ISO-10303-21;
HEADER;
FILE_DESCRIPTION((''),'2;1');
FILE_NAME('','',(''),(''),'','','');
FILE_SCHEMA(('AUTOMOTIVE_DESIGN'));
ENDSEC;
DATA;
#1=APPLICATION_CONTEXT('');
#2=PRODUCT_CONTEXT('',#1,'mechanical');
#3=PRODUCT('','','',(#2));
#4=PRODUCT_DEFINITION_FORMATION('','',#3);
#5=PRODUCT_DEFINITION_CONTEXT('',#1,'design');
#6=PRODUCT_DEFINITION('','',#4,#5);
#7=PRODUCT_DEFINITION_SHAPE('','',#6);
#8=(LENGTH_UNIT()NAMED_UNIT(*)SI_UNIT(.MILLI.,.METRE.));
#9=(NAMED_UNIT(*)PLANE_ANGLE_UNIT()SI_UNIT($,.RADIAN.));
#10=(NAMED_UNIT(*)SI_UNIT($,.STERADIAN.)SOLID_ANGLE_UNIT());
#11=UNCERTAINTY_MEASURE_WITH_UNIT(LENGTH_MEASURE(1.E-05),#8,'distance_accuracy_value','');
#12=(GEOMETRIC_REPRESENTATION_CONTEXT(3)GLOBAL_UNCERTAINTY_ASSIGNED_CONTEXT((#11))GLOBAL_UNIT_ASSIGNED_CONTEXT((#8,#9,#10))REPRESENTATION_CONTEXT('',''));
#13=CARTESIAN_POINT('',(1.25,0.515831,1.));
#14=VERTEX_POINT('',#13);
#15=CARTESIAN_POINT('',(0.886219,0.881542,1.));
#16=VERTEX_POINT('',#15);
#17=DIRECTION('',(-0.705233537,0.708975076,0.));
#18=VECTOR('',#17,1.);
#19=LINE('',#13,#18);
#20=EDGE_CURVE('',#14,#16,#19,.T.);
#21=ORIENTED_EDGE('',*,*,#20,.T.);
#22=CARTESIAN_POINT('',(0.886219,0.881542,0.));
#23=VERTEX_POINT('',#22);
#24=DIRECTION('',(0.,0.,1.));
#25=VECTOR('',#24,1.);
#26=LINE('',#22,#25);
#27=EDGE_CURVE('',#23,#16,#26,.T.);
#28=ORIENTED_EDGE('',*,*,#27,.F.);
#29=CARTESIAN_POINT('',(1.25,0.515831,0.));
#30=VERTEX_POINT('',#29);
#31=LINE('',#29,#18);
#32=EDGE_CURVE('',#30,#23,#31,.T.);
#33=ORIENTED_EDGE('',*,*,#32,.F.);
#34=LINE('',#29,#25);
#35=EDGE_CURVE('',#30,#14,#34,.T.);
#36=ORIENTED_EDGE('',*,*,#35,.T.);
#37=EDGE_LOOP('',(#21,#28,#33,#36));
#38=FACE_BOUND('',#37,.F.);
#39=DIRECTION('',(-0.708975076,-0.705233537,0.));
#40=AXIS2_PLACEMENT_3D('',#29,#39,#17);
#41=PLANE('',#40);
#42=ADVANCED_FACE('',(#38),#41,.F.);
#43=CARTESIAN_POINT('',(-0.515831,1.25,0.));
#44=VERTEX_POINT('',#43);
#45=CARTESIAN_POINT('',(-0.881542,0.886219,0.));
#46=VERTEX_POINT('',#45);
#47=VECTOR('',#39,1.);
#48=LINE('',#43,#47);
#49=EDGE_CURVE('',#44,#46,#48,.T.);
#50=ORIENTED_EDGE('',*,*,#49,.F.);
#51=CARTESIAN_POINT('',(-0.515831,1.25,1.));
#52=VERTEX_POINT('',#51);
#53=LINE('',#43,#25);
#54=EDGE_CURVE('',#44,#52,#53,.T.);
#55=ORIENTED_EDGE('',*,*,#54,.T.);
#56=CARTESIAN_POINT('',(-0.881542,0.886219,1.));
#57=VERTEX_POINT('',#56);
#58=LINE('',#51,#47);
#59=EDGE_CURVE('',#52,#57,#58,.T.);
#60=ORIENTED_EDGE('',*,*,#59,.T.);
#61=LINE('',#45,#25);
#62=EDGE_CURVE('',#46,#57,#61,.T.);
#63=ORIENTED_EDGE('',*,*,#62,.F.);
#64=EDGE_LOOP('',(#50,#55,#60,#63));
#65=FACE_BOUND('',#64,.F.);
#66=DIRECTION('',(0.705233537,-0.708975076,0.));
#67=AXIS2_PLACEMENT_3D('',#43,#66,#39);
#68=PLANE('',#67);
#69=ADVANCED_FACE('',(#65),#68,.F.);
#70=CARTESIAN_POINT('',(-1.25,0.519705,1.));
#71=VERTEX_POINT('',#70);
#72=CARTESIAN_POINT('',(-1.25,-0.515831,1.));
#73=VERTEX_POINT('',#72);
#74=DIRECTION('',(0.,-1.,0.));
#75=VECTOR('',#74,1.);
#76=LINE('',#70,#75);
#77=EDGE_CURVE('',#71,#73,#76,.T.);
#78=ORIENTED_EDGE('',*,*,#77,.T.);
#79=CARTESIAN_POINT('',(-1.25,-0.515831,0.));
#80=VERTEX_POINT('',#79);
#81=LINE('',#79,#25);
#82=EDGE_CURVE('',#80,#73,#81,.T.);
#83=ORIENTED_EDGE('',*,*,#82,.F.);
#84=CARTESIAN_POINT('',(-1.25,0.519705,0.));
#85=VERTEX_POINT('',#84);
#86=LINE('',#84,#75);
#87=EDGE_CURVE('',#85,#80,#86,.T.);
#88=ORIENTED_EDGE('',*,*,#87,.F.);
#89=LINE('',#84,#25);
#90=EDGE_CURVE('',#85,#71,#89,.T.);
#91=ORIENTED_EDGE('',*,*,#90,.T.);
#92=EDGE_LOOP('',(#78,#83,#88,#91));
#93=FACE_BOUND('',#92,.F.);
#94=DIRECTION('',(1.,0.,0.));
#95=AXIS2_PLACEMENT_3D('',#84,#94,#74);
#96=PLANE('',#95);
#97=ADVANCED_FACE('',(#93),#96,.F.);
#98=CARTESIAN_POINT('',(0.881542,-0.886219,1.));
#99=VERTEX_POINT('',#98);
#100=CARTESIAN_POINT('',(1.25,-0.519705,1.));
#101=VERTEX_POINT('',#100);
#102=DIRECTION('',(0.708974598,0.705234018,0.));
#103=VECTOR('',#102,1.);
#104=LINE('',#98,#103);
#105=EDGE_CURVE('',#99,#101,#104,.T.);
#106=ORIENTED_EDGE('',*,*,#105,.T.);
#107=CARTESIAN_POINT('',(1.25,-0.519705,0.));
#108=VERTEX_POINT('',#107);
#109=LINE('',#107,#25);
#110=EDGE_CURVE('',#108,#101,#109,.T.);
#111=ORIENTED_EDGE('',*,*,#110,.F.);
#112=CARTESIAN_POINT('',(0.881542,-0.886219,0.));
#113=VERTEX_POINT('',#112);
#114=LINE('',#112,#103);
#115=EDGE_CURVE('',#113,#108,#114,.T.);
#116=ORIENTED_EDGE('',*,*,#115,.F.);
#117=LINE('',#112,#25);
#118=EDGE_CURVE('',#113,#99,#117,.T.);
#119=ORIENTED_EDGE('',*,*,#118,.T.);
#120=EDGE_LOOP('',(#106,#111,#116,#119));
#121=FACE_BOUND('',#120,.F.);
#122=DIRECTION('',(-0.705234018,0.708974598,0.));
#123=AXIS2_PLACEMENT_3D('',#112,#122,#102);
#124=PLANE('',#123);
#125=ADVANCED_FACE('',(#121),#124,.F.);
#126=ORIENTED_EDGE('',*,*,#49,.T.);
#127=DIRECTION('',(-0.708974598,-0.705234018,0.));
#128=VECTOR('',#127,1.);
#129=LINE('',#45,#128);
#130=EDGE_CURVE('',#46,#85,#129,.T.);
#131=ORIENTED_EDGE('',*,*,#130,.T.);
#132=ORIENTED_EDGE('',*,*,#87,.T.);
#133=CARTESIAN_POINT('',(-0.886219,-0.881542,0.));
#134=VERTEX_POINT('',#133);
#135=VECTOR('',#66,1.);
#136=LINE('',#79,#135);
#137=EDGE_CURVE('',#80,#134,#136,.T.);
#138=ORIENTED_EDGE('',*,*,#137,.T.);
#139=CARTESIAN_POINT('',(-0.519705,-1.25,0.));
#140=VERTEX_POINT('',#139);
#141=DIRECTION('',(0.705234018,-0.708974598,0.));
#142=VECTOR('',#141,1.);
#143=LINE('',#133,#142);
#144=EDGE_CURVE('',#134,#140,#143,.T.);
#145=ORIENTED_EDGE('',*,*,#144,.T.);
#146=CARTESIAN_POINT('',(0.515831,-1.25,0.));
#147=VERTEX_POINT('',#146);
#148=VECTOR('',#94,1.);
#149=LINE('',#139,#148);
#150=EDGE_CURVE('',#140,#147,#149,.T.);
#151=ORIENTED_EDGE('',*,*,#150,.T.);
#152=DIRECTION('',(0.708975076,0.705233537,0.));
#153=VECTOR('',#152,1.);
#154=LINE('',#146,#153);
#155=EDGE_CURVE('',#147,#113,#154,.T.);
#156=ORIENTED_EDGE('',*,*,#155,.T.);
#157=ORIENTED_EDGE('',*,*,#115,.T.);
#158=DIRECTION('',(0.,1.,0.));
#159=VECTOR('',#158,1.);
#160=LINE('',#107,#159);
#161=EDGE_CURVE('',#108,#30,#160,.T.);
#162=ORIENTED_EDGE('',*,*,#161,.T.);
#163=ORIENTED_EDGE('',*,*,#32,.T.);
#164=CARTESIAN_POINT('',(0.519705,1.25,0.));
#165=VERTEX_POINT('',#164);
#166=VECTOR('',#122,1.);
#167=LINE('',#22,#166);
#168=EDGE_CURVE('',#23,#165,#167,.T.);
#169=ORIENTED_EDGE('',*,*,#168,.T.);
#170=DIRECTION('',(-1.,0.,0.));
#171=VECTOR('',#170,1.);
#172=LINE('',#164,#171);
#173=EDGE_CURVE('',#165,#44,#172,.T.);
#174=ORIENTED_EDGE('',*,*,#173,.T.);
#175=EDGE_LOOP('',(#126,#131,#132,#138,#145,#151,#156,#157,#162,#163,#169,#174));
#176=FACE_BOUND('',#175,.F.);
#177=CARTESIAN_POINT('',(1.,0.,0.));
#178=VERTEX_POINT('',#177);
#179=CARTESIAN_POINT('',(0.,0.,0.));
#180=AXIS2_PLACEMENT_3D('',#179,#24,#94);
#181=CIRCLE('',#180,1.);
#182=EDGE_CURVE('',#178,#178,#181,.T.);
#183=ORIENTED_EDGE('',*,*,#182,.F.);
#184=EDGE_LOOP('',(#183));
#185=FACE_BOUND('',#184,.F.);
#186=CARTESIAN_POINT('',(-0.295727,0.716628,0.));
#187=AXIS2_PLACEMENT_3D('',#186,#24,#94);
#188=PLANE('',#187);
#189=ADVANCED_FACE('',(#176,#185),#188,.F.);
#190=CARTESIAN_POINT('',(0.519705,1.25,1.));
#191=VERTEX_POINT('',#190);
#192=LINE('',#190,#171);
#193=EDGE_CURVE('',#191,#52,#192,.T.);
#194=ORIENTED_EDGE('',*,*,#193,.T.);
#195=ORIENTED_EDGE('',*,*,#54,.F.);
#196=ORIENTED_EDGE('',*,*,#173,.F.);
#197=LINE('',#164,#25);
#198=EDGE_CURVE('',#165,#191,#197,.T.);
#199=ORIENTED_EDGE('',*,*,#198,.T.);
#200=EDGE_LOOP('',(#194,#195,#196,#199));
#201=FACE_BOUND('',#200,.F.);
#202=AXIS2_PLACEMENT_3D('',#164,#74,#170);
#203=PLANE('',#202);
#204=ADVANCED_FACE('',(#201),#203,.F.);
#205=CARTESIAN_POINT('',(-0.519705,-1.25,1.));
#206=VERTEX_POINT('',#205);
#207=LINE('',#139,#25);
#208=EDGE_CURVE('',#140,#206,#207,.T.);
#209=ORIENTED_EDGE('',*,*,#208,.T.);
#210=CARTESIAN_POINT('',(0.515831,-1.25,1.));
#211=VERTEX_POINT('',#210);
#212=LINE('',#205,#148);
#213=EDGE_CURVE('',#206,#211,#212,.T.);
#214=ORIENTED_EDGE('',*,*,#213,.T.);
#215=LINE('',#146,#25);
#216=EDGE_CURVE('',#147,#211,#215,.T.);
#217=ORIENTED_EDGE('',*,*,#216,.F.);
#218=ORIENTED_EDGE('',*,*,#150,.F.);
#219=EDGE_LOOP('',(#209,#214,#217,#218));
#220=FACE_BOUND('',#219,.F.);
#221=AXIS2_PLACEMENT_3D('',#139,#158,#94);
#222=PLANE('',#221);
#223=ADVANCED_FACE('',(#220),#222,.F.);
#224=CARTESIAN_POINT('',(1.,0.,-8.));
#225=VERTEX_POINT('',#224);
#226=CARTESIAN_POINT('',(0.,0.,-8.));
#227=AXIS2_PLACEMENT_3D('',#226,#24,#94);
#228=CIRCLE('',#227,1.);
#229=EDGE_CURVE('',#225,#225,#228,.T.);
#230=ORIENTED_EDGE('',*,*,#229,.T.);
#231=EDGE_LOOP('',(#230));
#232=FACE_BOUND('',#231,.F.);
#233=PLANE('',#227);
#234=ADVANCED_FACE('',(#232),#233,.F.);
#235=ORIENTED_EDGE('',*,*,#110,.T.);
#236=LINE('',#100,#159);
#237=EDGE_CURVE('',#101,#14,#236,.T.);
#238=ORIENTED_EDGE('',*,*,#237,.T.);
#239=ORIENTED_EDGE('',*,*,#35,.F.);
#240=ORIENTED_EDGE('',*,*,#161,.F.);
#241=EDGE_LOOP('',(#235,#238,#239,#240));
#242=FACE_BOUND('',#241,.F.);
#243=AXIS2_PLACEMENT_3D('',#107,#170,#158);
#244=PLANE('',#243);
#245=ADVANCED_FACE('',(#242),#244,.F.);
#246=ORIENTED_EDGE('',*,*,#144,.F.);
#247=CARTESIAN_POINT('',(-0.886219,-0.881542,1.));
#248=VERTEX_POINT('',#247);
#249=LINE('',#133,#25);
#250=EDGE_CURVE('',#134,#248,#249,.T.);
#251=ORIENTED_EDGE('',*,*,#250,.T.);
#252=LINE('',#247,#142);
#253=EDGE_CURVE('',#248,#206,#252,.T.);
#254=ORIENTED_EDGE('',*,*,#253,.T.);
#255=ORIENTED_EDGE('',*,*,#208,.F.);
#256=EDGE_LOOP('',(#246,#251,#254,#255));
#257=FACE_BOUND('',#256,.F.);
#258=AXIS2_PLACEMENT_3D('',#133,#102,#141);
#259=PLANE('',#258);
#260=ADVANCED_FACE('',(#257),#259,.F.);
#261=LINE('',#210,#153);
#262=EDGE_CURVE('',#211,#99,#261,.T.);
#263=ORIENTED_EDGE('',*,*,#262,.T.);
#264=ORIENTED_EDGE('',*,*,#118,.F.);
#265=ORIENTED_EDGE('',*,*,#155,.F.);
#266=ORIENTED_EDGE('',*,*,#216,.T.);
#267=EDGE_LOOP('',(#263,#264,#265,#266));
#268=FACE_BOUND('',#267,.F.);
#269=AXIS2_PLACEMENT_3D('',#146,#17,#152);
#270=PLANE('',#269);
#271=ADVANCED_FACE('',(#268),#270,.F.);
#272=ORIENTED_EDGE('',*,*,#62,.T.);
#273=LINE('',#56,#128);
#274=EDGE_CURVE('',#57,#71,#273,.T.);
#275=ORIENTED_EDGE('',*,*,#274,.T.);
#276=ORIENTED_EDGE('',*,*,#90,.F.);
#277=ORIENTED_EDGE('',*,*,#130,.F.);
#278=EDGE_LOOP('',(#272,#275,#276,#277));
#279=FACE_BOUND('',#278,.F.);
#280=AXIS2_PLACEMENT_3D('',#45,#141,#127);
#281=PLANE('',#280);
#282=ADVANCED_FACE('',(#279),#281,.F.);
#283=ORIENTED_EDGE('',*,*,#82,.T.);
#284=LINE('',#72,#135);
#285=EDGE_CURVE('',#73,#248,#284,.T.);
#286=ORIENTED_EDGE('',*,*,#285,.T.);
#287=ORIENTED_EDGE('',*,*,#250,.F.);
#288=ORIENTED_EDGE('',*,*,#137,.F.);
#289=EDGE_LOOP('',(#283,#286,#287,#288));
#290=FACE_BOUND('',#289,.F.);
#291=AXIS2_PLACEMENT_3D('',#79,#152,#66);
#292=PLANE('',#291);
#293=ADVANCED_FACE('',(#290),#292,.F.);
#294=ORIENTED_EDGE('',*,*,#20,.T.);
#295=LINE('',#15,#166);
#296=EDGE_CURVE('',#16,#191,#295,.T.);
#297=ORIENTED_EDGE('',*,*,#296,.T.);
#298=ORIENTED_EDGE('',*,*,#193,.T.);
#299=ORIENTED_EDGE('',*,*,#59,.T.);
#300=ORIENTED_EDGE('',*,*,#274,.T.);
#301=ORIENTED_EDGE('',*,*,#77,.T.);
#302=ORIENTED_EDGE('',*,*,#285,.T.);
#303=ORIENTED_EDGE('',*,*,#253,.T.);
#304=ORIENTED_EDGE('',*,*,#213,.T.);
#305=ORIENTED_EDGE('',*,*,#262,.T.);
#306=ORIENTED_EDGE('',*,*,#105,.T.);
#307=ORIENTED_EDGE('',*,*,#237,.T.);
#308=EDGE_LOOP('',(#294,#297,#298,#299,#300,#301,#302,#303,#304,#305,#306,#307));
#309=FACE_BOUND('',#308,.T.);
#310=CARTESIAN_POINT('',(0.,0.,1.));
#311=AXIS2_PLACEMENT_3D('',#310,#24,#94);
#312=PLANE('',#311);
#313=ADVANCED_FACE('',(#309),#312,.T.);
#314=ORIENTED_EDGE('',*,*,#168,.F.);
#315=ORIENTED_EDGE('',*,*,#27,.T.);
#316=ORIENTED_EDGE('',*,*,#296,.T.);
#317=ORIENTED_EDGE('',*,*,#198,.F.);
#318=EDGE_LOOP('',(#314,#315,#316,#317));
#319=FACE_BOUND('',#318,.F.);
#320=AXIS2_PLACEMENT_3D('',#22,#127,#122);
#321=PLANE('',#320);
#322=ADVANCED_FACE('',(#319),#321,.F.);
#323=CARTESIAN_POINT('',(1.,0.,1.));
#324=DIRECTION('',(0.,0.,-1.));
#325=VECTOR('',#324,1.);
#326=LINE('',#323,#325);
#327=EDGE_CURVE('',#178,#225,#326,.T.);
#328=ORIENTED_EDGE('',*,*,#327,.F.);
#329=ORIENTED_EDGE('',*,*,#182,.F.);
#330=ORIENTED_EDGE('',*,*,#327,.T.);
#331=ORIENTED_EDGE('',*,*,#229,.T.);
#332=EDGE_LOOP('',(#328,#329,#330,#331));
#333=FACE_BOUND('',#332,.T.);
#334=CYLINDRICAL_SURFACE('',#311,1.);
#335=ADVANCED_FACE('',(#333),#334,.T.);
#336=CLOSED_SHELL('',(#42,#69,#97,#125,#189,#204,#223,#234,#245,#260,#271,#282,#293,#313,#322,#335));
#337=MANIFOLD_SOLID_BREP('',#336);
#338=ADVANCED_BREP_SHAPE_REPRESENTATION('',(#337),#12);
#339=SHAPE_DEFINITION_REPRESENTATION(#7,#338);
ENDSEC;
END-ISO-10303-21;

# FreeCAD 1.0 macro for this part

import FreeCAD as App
import Part
import Sketcher

doc = App.newDocument("Part")
body = doc.addObject("PartDesign::Body", "Body")

sketch1 = body.newObject("Sketcher::SketchObject", "Sketch")
sketch1.AttachmentSupport = (doc.getObject("XY_Plane"), [""])
sketch1.MapMode = "FlatFace"
sketch1.addGeometry([
    Part.LineSegment(App.Vector(-1.2, -0.5, 0), App.Vector(-0.9, -0.9, 0)),
    Part.LineSegment(App.Vector(-0.9, -0.9, 0), App.Vector(-0.5, -1.2, 0)),
    Part.LineSegment(App.Vector(-0.5, -1.2, 0), App.Vector(0.5, -1.2, 0)),
    Part.LineSegment(App.Vector(0.5, -1.2, 0), App.Vector(0.9, -0.9, 0)),
    Part.LineSegment(App.Vector(0.9, -0.9, 0), App.Vector(1.2, -0.5, 0)),
    Part.LineSegment(App.Vector(1.2, -0.5, 0), App.Vector(1.2, 0.5, 0)),
    Part.LineSegment(App.Vector(1.2, 0.5, 0), App.Vector(0.9, 0.9, 0)),
    Part.LineSegment(App.Vector(0.9, 0.9, 0), App.Vector(0.5, 1.2, 0)),
    Part.LineSegment(App.Vector(0.5, 1.2, 0), App.Vector(-0.5, 1.2, 0)),
    Part.LineSegment(App.Vector(-0.5, 1.2, 0), App.Vector(-0.9, 0.9, 0)),
    Part.LineSegment(App.Vector(-0.9, 0.9, 0), App.Vector(-1.2, 0.5, 0)),
    Part.LineSegment(App.Vector(-1.2, 0.5, 0), App.Vector(-1.2, -0.5, 0)),
], False)
sketch1.addConstraint([
    Sketcher.Constraint("Coincident", 0, 2, 1, 1),
    Sketcher.Constraint("Coincident", 1, 2, 2, 1),
    Sketcher.Constraint("Coincident", 2, 2, 3, 1),
    Sketcher.Constraint("Coincident", 3, 2, 4, 1),
    Sketcher.Constraint("Coincident", 4, 2, 5, 1),
    Sketcher.Constraint("Coincident", 5, 2, 6, 1),
    Sketcher.Constraint("Coincident", 6, 2, 7, 1),
    Sketcher.Constraint("Coincident", 7, 2, 8, 1),
    Sketcher.Constraint("Coincident", 8, 2, 9, 1),
    Sketcher.Constraint("Coincident", 9, 2, 10, 1),
    Sketcher.Constraint("Coincident", 10, 2, 11, 1),
    Sketcher.Constraint("Coincident", 11, 2, 0, 1),
    Sketcher.Constraint("Horizontal", 2),
    Sketcher.Constraint("Vertical", 5),
    Sketcher.Constraint("Horizontal", 8),
    Sketcher.Constraint("Vertical", 11),
    Sketcher.Constraint("Symmetric", 0, 2, 6, 2, -1, 1),
    Sketcher.Constraint("Symmetric", 1, 2, 7, 2, -1, 1),
    Sketcher.Constraint("Symmetric", 3, 2, 9, 2, -1, 1),
    Sketcher.Constraint("Symmetric", 4, 2, 10, 2, -1, 1),
    Sketcher.Constraint("Parallel", 0, 1),
    Sketcher.Constraint("Perpendicular", 1, 3),
    Sketcher.Constraint("Parallel", 3, 4),
    Sketcher.Constraint("Perpendicular", 4, 6),
    Sketcher.Constraint("Perpendicular", 7, 9),
    Sketcher.Constraint("Equal", 8, 5),
    Sketcher.Constraint("Equal", 0, 3),
    Sketcher.Constraint("Equal", 1, 4),
    Sketcher.Constraint("DistanceY", 2, 2, 7, 2, 2.5),
    Sketcher.Constraint("Distance", 0, 0.515831),
    Sketcher.Constraint("DistanceX", 2, 1, 2, 2, 1.035536),
    Sketcher.Constraint("DistanceX", 0, 2, -1, 1, 0.886219),
])
pad1 = body.newObject("PartDesign::Pad", "Pad")
pad1.Profile = sketch1
pad1.Length = 1

sketch2 = body.newObject("Sketcher::SketchObject", "Sketch001")
sketch2.AttachmentSupport = (doc.getObject("XY_Plane"), [""])
sketch2.MapMode = "FlatFace"
sketch2.AttachmentOffset = App.Placement(App.Vector(0, 0, 1), App.Rotation())
sketch2.addGeometry(Part.Circle(App.Vector(0, 0, 0), App.Vector(0, 0, 1), 1), False)
sketch2.addConstraint([
    Sketcher.Constraint("Coincident", 0, 3, -1, 1),
    Sketcher.Constraint("Diameter", 0, 2.0),
])
pad2 = body.newObject("PartDesign::Pad", "Pad001")
pad2.Profile = sketch2
pad2.Length = 9
pad2.Reversed = True

doc.recompute()
